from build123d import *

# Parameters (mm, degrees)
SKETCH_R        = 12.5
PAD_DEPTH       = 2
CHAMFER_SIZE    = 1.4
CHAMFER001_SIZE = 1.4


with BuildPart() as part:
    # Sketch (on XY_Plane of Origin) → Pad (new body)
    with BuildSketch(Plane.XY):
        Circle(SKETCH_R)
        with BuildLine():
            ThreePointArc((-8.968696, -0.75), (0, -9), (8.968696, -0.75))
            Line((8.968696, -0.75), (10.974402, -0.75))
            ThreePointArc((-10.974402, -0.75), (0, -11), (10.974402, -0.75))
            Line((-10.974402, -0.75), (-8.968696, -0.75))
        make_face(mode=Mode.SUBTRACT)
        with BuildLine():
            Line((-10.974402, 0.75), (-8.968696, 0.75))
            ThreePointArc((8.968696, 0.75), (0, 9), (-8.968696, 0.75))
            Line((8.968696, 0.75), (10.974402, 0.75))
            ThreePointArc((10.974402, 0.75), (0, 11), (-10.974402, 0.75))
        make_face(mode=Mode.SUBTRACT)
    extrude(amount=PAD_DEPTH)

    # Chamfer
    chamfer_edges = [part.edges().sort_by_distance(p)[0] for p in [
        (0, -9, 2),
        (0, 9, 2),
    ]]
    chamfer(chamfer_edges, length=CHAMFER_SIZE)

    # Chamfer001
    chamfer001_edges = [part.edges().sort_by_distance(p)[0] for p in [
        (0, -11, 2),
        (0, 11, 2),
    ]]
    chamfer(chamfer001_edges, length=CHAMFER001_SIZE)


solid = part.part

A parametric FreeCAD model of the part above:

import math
import FreeCAD as App
import Part
import Sketcher

V = App.Vector
Q = App.Units.Quantity


def edges_at(feature, points):
    """Names of the edges that pass closest to the given points."""
    edges = feature.Shape.Edges
    near = lambda p: min(range(len(edges)), key=lambda i: edges[i].distToShape(Part.Vertex(*p))[0])
    return sorted({f"Edge{near(p) + 1}" for p in points})

doc = App.newDocument("Part")
params = doc.addObject("Spreadsheet::Sheet", "Params")
for row, (alias, value) in enumerate([
    ("sketch1_diameter", "25 mm"),
    ("sketch1_radius", "9 mm"),
    ("sketch1_radius2", "11 mm"),
    ("pad1_length", "2 mm"),
    ("chamfer_size", "1.4 mm"),
    ("chamfer2_size", "1.4 mm"),
], start=1):
    params.set(f"A{row}", alias)
    params.set(f"B{row}", "=" + value)
    params.setAlias(f"B{row}", alias)

body = doc.addObject("PartDesign::Body", "Body")

sketch1 = body.newObject("Sketcher::SketchObject", "Sketch")
sketch1.AttachmentSupport = (doc.getObject("XY_Plane"), [""])
sketch1.MapMode = "FlatFace"
sketch1.addGeometry([
    Part.Circle(V(0, 0, 0), V(0, 0, 1), 12.5),
    Part.LineSegment(V(-11, -0.8, 0), V(-9, -0.8, 0)),
    Part.ArcOfCircle(Part.Circle(V(0, 0, 0), V(0, 0, 1), 9), math.radians(-175), math.radians(-5)),
    Part.LineSegment(V(9, -0.8, 0), V(11, -0.8, 0)),
    Part.ArcOfCircle(Part.Circle(V(0, 0, 0), V(0, 0, 1), 11), math.radians(-176), math.radians(-4)),
    Part.LineSegment(V(-9, 0.8, 0), V(-11, 0.8, 0)),
    Part.ArcOfCircle(Part.Circle(V(0, 0, 0), V(0, 0, 1), 11), math.radians(4), math.radians(176)),
    Part.LineSegment(V(11, 0.8, 0), V(9, 0.8, 0)),
    Part.ArcOfCircle(Part.Circle(V(0, 0, 0), V(0, 0, 1), 9), math.radians(5), math.radians(175)),
], False)
sketch1.addConstraint([
    Sketcher.Constraint("Coincident", 1, 2, 2, 1),
    Sketcher.Constraint("Coincident", 2, 2, 3, 1),
    Sketcher.Constraint("Coincident", 3, 2, 4, 2),
    Sketcher.Constraint("Coincident", 4, 1, 1, 1),
    Sketcher.Constraint("Coincident", 5, 2, 6, 2),
    Sketcher.Constraint("Coincident", 6, 1, 7, 1),
    Sketcher.Constraint("Coincident", 7, 2, 8, 1),
    Sketcher.Constraint("Coincident", 8, 2, 5, 1),
    Sketcher.Constraint("Horizontal", 1),
    Sketcher.Constraint("Horizontal", 3),
    Sketcher.Constraint("Horizontal", 5),
    Sketcher.Constraint("Horizontal", 7),
    Sketcher.Constraint("Coincident", 0, 3, -1, 1),
    Sketcher.Constraint("Coincident", 2, 3, -1, 1),
    Sketcher.Constraint("Coincident", 4, 3, -1, 1),
    Sketcher.Constraint("Coincident", 6, 3, -1, 1),
    Sketcher.Constraint("Coincident", 8, 3, -1, 1),
    Sketcher.Constraint("Equal", 4, 6),
    Sketcher.Constraint("Equal", 2, 8),
    Sketcher.Constraint("Horizontal", 1, 2, 2, 2),
    Sketcher.Constraint("Horizontal", 5, 2, 6, 1),
    Sketcher.Constraint("Vertical", 4, 1, 5, 2),
    Sketcher.Constraint("Diameter", 0, Q("25 mm")),
    Sketcher.Constraint("Radius", 2, Q("9 mm")),
    Sketcher.Constraint("Radius", 4, Q("11 mm")),
    Sketcher.Constraint("DistanceY", 4, 1, 5, 2, Q("1.5 mm")),
])
sketch1.setExpression("Constraints[22]", "Params.sketch1_diameter")
sketch1.setExpression("Constraints[23]", "Params.sketch1_radius")
sketch1.setExpression("Constraints[24]", "Params.sketch1_radius2")
pad1 = body.newObject("PartDesign::Pad", "Pad")
pad1.Profile = sketch1
pad1.setExpression("Length", "Params.pad1_length")
doc.recompute()

chamfer = body.newObject("PartDesign::Chamfer", "Chamfer")
chamfer.Base = (pad1, edges_at(pad1, [(0, -9, 2), (0, 9, 2)]))
chamfer.setExpression("Size", "Params.chamfer_size")
doc.recompute()

chamfer2 = body.newObject("PartDesign::Chamfer", "Chamfer001")
chamfer2.Base = (chamfer, edges_at(chamfer, [(0, -11, 2), (0, 11, 2)]))
chamfer2.setExpression("Size", "Params.chamfer2_size")

doc.recompute()
